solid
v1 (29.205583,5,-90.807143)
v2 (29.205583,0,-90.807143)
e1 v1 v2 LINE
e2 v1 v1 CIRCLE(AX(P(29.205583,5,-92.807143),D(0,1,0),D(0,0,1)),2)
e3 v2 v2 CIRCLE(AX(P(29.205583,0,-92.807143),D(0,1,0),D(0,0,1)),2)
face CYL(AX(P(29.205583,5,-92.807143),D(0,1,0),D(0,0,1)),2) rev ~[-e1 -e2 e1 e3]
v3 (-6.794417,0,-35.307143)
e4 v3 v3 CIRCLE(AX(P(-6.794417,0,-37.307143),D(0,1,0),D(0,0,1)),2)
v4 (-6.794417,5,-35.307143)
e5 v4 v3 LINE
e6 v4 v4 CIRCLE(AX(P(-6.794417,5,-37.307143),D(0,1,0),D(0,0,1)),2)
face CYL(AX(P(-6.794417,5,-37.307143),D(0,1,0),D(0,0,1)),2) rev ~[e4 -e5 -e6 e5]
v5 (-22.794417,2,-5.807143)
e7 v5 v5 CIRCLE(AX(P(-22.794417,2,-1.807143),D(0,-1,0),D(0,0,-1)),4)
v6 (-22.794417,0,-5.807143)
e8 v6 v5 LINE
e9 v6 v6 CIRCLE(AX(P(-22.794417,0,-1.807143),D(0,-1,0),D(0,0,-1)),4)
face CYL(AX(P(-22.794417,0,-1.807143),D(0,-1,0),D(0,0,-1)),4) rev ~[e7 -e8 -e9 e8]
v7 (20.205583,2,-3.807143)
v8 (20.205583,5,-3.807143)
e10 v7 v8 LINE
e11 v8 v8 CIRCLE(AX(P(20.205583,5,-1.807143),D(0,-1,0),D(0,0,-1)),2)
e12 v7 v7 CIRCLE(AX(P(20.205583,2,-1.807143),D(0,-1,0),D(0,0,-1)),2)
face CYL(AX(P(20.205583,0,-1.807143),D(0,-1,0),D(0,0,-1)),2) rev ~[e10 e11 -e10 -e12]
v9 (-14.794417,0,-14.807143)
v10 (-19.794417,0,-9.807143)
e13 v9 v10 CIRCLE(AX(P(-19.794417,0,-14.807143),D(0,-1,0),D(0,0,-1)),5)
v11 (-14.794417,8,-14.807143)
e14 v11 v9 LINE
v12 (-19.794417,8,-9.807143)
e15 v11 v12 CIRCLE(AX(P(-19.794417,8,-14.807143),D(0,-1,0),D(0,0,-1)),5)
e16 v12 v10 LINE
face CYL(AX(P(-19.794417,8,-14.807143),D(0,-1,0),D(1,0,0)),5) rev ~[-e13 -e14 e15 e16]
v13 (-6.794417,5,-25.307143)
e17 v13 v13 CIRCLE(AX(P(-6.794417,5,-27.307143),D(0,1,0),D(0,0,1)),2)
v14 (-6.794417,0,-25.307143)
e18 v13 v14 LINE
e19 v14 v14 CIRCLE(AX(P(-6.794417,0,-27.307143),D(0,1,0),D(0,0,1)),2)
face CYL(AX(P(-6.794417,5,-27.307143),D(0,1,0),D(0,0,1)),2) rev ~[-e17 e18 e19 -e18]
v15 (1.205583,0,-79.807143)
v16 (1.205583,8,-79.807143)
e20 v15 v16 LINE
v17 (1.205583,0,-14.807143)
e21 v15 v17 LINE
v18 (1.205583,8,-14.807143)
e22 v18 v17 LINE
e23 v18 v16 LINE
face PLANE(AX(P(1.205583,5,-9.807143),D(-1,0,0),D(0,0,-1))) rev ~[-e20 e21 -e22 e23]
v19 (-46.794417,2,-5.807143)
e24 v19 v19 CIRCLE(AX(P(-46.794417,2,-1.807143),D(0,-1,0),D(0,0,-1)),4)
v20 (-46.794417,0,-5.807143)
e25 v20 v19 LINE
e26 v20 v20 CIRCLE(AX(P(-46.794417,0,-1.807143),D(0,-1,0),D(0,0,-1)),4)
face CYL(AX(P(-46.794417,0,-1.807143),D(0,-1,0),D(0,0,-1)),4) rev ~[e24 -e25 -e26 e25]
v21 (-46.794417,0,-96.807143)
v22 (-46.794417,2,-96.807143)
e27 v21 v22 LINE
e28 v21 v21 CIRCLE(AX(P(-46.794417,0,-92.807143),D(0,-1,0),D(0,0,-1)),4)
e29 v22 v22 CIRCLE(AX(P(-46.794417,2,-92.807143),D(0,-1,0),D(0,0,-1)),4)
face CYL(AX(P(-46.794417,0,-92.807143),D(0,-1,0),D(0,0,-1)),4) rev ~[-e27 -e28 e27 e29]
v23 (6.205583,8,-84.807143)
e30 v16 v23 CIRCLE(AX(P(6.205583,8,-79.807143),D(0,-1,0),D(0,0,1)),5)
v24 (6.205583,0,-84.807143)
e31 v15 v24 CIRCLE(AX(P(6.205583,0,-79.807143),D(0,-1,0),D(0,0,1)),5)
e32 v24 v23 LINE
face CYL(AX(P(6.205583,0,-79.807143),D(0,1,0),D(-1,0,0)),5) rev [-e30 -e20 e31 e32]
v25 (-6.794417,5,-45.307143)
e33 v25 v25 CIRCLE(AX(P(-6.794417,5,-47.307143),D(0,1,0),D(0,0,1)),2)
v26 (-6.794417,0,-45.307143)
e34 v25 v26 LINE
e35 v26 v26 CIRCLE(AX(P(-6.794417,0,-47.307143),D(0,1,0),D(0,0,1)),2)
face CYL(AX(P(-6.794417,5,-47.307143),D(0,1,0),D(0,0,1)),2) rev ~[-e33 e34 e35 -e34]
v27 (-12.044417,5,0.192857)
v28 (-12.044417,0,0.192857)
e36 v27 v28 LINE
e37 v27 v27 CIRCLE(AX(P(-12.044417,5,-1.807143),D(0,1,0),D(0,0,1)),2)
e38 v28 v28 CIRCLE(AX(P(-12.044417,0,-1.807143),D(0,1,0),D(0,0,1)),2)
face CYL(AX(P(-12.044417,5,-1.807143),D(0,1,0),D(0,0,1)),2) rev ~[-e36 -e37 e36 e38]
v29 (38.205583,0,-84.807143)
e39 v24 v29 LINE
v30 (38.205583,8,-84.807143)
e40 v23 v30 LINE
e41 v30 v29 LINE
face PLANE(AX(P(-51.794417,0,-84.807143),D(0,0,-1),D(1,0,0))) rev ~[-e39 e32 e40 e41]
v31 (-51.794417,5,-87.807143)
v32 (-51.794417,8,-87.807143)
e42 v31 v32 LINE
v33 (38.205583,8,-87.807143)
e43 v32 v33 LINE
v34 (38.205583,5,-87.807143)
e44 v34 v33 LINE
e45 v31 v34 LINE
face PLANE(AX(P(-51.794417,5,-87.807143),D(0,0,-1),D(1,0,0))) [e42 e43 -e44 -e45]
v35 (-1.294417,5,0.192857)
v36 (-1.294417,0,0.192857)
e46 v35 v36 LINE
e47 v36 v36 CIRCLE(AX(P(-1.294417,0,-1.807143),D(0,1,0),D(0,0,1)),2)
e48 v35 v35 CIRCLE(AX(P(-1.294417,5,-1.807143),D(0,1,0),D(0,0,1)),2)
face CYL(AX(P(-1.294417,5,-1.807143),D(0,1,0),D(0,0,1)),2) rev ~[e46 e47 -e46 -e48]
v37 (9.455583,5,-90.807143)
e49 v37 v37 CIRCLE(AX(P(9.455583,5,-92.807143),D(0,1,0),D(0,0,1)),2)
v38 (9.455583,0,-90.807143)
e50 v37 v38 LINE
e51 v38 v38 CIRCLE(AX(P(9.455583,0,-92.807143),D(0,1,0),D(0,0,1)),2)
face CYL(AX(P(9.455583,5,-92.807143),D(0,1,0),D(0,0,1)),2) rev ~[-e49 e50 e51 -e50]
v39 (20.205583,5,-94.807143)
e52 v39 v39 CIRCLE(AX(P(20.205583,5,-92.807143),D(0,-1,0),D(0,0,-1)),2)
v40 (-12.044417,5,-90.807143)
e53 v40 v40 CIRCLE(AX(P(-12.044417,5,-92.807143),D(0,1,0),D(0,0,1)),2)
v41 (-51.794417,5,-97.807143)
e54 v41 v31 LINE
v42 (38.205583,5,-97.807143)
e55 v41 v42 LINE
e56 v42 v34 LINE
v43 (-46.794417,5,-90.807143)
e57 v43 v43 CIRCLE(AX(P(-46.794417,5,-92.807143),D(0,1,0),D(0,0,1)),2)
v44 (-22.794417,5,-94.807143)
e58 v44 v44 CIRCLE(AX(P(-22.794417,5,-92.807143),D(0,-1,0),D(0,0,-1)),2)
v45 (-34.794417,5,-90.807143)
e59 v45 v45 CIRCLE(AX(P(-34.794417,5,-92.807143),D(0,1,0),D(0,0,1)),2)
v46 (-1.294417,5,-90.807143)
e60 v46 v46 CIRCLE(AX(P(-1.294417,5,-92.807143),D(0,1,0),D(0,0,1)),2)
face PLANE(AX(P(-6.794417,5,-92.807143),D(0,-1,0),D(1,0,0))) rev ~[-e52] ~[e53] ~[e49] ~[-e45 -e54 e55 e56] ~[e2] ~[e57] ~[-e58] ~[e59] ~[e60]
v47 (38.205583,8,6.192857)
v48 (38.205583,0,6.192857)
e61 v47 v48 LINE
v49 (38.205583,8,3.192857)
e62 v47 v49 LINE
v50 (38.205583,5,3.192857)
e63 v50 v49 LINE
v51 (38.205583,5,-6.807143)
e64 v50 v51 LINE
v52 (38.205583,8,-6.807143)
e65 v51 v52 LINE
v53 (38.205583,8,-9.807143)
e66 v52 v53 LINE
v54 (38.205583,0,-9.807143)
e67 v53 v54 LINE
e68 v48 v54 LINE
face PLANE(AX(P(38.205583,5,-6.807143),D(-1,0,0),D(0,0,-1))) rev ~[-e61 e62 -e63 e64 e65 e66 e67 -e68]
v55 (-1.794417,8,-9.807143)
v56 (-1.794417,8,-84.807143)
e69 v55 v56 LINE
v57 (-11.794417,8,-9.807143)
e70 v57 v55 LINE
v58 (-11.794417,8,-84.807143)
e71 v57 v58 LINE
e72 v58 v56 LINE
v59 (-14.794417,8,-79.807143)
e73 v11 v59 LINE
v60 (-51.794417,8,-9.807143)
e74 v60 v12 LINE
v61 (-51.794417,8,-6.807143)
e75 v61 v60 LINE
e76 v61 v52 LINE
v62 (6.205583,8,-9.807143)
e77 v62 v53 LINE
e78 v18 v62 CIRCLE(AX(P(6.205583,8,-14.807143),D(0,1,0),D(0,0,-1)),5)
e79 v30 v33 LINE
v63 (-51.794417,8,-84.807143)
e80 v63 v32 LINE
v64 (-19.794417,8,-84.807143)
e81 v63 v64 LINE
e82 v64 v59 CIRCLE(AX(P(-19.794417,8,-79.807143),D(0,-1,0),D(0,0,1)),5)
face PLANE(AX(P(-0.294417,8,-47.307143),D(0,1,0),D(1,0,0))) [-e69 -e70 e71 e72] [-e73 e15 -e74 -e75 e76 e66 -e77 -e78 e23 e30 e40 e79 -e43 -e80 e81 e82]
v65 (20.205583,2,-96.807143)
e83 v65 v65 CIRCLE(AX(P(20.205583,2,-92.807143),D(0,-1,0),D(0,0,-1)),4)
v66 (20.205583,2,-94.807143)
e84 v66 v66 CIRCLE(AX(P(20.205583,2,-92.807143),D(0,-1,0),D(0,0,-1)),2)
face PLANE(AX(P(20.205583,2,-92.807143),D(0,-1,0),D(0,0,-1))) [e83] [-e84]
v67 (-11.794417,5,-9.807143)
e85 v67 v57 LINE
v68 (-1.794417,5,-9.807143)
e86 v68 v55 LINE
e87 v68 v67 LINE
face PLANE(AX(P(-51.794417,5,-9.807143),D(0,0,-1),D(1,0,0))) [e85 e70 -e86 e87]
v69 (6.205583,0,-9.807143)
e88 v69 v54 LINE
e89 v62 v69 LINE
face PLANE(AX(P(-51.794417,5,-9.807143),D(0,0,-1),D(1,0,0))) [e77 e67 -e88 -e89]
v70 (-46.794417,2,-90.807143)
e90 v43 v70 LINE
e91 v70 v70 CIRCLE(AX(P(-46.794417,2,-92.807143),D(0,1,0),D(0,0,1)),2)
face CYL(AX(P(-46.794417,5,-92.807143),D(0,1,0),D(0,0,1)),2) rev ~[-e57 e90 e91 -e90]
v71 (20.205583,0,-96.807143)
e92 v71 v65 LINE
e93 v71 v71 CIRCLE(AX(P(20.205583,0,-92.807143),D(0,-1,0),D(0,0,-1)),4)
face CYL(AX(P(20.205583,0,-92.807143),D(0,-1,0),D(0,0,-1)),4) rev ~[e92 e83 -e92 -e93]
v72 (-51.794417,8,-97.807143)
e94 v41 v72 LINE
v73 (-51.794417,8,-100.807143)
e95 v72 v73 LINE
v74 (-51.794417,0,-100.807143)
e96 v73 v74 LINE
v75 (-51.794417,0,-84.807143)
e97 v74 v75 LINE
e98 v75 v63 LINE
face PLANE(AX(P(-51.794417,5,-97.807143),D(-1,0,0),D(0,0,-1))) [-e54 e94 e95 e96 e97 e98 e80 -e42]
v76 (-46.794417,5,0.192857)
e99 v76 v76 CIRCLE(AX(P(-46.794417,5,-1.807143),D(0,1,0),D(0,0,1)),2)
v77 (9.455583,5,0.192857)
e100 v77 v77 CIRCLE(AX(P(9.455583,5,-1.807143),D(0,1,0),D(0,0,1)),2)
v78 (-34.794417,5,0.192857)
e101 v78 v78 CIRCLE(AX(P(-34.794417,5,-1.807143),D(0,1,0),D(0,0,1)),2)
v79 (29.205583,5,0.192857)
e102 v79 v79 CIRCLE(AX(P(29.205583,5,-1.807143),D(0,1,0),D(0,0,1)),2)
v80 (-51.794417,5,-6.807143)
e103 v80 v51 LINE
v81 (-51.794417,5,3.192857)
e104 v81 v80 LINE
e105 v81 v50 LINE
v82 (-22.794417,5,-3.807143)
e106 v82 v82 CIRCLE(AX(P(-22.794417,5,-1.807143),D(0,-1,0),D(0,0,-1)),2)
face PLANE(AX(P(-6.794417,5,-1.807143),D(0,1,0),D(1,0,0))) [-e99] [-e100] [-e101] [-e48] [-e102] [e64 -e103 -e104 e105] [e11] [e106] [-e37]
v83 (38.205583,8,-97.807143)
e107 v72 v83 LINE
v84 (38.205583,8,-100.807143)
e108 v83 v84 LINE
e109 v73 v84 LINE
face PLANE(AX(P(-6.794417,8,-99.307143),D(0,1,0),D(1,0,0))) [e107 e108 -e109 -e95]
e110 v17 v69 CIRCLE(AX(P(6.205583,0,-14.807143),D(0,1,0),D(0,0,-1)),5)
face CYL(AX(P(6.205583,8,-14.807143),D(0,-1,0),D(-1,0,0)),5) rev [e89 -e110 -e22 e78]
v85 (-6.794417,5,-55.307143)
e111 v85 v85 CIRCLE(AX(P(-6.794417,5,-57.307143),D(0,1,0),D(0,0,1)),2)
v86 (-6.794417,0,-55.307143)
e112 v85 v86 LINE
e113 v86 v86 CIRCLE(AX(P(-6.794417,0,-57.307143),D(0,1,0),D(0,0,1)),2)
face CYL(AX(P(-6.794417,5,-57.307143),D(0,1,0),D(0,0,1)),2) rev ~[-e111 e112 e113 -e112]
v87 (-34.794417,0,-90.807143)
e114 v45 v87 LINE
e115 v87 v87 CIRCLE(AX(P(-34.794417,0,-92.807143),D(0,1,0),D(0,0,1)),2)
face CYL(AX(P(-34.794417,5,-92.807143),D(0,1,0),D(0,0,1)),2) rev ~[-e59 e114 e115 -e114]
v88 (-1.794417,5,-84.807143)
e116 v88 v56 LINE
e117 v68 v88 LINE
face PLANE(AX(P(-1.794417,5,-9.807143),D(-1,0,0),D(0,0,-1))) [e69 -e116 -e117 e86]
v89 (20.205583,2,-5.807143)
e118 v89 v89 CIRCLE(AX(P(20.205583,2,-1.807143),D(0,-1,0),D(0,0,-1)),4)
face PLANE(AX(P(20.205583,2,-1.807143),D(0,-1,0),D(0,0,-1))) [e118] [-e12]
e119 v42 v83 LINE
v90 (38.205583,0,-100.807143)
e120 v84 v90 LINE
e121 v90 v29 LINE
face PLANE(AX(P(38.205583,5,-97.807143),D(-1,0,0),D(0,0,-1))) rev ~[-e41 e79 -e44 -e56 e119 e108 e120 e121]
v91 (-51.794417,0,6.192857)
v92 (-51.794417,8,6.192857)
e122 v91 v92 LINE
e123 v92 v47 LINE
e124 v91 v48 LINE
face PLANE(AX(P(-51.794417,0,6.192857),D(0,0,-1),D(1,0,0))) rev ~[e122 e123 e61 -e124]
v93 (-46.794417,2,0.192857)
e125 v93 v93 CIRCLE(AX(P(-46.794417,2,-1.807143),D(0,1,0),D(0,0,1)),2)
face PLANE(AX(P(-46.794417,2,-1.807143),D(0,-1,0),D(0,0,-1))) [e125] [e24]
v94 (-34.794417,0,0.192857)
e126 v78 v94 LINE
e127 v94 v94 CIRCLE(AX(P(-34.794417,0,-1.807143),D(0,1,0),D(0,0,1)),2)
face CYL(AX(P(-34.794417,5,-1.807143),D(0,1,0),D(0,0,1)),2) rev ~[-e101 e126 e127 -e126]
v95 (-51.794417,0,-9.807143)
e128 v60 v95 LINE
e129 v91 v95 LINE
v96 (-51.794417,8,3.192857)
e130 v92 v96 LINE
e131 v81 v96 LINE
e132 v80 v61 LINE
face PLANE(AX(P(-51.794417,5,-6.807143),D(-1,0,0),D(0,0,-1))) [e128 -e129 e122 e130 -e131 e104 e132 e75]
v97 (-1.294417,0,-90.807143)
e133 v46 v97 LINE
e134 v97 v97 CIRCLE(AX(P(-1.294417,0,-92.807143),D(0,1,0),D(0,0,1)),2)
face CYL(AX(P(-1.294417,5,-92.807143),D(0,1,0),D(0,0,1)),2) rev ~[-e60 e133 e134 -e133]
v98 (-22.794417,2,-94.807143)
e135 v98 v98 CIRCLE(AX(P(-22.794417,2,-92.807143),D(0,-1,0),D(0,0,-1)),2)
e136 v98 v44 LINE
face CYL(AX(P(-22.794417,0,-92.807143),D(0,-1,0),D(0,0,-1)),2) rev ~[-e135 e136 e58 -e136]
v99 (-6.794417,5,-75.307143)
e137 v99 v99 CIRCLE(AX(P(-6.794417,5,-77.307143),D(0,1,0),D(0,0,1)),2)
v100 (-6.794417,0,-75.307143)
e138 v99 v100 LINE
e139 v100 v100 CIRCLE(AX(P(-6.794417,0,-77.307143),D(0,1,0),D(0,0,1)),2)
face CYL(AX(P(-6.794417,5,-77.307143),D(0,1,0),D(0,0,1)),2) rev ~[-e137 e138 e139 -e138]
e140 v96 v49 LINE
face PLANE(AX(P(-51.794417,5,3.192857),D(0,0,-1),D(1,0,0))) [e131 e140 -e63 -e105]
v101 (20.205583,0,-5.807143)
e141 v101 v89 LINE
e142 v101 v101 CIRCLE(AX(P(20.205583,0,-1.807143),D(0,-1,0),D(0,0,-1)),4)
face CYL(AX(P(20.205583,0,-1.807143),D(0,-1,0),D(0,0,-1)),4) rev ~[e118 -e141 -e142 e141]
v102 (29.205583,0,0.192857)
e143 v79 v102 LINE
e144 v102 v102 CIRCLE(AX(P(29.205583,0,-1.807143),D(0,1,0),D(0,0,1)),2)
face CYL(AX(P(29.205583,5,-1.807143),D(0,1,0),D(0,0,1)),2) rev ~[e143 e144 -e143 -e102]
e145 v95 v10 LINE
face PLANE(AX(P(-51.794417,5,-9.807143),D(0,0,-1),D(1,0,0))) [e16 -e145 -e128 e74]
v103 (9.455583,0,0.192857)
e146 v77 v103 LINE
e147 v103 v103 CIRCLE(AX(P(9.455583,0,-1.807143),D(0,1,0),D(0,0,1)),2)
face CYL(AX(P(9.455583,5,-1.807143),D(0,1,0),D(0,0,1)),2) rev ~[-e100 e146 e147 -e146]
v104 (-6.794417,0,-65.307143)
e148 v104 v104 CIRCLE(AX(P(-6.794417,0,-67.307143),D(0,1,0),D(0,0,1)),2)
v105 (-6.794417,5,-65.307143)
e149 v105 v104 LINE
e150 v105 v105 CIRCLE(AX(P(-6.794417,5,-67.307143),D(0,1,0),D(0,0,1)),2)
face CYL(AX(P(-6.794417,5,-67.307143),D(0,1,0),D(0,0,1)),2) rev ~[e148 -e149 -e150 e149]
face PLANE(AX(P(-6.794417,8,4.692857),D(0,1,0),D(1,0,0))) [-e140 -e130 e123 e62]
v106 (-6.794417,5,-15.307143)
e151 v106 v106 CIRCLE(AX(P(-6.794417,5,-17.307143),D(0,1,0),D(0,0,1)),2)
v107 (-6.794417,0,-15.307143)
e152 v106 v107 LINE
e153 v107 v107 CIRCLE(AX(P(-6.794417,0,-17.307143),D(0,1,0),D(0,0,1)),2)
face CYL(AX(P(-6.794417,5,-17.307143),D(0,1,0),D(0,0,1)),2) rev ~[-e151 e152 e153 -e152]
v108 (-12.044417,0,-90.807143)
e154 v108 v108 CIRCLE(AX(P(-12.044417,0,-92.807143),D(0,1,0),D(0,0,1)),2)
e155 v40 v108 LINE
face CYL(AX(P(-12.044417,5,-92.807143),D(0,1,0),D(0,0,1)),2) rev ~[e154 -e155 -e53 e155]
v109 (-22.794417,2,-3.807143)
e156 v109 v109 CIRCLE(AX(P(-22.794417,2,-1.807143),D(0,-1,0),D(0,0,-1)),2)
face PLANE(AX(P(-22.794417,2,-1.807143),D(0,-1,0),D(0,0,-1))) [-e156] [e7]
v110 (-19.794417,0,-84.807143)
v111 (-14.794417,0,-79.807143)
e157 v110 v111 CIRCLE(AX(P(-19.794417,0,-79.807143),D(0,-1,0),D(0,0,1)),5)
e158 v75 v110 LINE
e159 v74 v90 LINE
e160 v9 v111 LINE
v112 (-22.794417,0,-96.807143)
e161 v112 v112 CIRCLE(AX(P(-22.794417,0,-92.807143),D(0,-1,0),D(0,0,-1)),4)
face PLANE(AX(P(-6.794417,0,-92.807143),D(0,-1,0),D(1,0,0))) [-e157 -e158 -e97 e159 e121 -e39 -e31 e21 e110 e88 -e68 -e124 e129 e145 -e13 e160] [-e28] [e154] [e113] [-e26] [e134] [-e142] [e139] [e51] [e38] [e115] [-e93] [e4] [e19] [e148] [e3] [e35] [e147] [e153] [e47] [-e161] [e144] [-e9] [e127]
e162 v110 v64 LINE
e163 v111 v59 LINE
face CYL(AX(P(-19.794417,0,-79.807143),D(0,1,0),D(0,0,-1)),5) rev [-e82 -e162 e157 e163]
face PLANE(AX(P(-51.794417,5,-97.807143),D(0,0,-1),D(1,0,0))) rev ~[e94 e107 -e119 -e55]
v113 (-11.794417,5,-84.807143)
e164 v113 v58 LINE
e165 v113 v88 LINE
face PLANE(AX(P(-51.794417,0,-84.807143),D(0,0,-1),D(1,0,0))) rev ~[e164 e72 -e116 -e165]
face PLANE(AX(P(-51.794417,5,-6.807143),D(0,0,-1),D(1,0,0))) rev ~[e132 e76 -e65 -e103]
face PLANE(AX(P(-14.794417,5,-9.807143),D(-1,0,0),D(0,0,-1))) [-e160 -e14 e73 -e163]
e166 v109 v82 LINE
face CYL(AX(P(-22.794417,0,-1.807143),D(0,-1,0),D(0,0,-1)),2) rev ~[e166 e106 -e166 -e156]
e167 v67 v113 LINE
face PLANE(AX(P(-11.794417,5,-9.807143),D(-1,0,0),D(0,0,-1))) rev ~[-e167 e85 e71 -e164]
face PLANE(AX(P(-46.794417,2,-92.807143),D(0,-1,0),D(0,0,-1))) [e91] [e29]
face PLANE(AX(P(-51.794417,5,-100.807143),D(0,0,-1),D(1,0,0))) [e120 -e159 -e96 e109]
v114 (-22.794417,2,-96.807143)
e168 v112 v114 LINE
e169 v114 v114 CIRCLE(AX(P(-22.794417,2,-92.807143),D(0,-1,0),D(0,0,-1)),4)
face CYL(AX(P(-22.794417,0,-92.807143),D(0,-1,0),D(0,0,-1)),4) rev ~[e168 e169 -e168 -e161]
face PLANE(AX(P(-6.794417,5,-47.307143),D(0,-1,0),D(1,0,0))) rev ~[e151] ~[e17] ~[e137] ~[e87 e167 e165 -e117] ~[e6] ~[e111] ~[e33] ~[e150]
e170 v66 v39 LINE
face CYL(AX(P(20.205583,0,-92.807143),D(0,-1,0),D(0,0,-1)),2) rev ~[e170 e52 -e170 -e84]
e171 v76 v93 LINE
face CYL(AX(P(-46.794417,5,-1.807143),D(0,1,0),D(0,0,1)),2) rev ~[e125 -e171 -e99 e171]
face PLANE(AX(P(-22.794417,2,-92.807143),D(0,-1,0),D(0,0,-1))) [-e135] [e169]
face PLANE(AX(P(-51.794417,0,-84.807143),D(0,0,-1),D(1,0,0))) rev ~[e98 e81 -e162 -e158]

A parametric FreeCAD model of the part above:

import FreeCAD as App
import Part
import Sketcher


def edges_at(feature, points):
    """Names of the edges that pass closest to the given points."""
    edges = feature.Shape.Edges
    near = lambda p: min(range(len(edges)), key=lambda i: edges[i].distToShape(Part.Vertex(*p))[0])
    return sorted({f"Edge{near(p) + 1}" for p in points})

doc = App.newDocument("Part")
body = doc.addObject("PartDesign::Body", "Body")

# Sketch on XZ plane
sketch1 = body.newObject("Sketcher::SketchObject", "Sketch")
sketch1.AttachmentSupport = (doc.getObject("XZ_Plane"), [""])
sketch1.MapMode = "FlatFace"
sketch1.addGeometry(Part.LineSegment(App.Vector(-52, -10, 0), App.Vector(-52, 6, 0)), False)
sketch1.addGeometry(Part.LineSegment(App.Vector(-52, 6, 0), App.Vector(38, 6, 0)), False)
sketch1.addGeometry(Part.LineSegment(App.Vector(38, 6, 0), App.Vector(38, -10, 0)), False)
sketch1.addGeometry(Part.LineSegment(App.Vector(38, -10, 0), App.Vector(-52, -10, 0)), False)
sketch1.addConstraint(Sketcher.Constraint("Coincident", 0, 2, 1, 1))
sketch1.addConstraint(Sketcher.Constraint("Coincident", 1, 2, 2, 1))
sketch1.addConstraint(Sketcher.Constraint("Coincident", 2, 2, 3, 1))
sketch1.addConstraint(Sketcher.Constraint("Coincident", 3, 2, 0, 1))
sketch1.addConstraint(Sketcher.Constraint("Vertical", 0))
sketch1.addConstraint(Sketcher.Constraint("Horizontal", 1))
sketch1.addConstraint(Sketcher.Constraint("Vertical", 2))
sketch1.addConstraint(Sketcher.Constraint("Horizontal", 3))
sketch1.addConstraint(Sketcher.Constraint("DistanceX", 1, 1, 1, 2, 90.0))
sketch1.addConstraint(Sketcher.Constraint("DistanceY", 0, 1, 0, 2, 16.0))
sketch1.addConstraint(Sketcher.Constraint("DistanceX", 0, 2, -1, 1, 51.794417))
sketch1.addConstraint(Sketcher.Constraint("DistanceY", -1, 1, 0, 2, 6.192857))
pad1 = body.newObject("PartDesign::Pad", "Pad")
pad1.Profile = sketch1
pad1.Length = 5
pad1.Reversed = True

# Sketch on XZ plane
sketch2 = body.newObject("Sketcher::SketchObject", "Sketch001")
sketch2.AttachmentSupport = (doc.getObject("XZ_Plane"), [""])
sketch2.MapMode = "FlatFace"
sketch2.AttachmentOffset = App.Placement(App.Vector(0, 0, -5), App.Rotation())
sketch2.addGeometry(Part.LineSegment(App.Vector(-51.8, -9.8, 0), App.Vector(-51.8, -6.8, 0)), False)
sketch2.addGeometry(Part.LineSegment(App.Vector(-51.8, -6.8, 0), App.Vector(38.2, -6.8, 0)), False)
sketch2.addGeometry(Part.LineSegment(App.Vector(38.2, -6.8, 0), App.Vector(38.2, -9.8, 0)), False)
sketch2.addGeometry(Part.LineSegment(App.Vector(38.2, -9.8, 0), App.Vector(-51.8, -9.8, 0)), False)
sketch2.addGeometry(Part.LineSegment(App.Vector(-51.8, 3.2, 0), App.Vector(-51.8, 6.2, 0)), False)
sketch2.addGeometry(Part.LineSegment(App.Vector(-51.8, 6.2, 0), App.Vector(38.2, 6.2, 0)), False)
sketch2.addGeometry(Part.LineSegment(App.Vector(38.2, 6.2, 0), App.Vector(38.2, 3.2, 0)), False)
sketch2.addGeometry(Part.LineSegment(App.Vector(38.2, 3.2, 0), App.Vector(-51.8, 3.2, 0)), False)
sketch2.addConstraint(Sketcher.Constraint("Coincident", 0, 2, 1, 1))
sketch2.addConstraint(Sketcher.Constraint("Coincident", 1, 2, 2, 1))
sketch2.addConstraint(Sketcher.Constraint("Coincident", 2, 2, 3, 1))
sketch2.addConstraint(Sketcher.Constraint("Coincident", 3, 2, 0, 1))
sketch2.addConstraint(Sketcher.Constraint("Coincident", 4, 2, 5, 1))
sketch2.addConstraint(Sketcher.Constraint("Coincident", 5, 2, 6, 1))
sketch2.addConstraint(Sketcher.Constraint("Coincident", 6, 2, 7, 1))
sketch2.addConstraint(Sketcher.Constraint("Coincident", 7, 2, 4, 1))
sketch2.addConstraint(Sketcher.Constraint("Vertical", 0))
sketch2.addConstraint(Sketcher.Constraint("Horizontal", 1))
sketch2.addConstraint(Sketcher.Constraint("Vertical", 2))
sketch2.addConstraint(Sketcher.Constraint("Horizontal", 3))
sketch2.addConstraint(Sketcher.Constraint("Vertical", 4))
sketch2.addConstraint(Sketcher.Constraint("Horizontal", 5))
sketch2.addConstraint(Sketcher.Constraint("Vertical", 6))
sketch2.addConstraint(Sketcher.Constraint("Horizontal", 7))
sketch2.addConstraint(Sketcher.Constraint("Vertical", 3, 2, 4, 2))
sketch2.addConstraint(Sketcher.Constraint("Vertical", 2, 2, 5, 2))
sketch2.addConstraint(Sketcher.Constraint("Equal", 2, 4))
sketch2.addConstraint(Sketcher.Constraint("DistanceX", 1, 1, 1, 2, 90.0))
sketch2.addConstraint(Sketcher.Constraint("DistanceY", 0, 1, 0, 2, 3.0))
sketch2.addConstraint(Sketcher.Constraint("DistanceY", 0, 2, 4, 2, 13.0))
sketch2.addConstraint(Sketcher.Constraint("DistanceX", 0, 2, -1, 1, 51.794417))
sketch2.addConstraint(Sketcher.Constraint("DistanceY", 0, 2, -1, 1, 6.807143))
pad2 = body.newObject("PartDesign::Pad", "Pad001")
pad2.Profile = sketch2
pad2.Length = 3
pad2.Reversed = True

# Sketch on XZ plane
sketch3 = body.newObject("Sketcher::SketchObject", "Sketch002")
sketch3.AttachmentSupport = (doc.getObject("XZ_Plane"), [""])
sketch3.MapMode = "FlatFace"
sketch3.addGeometry(Part.Circle(App.Vector(20.2, -1.8, 0), App.Vector(0, 0, 1), 2), False)
sketch3.addGeometry(Part.Circle(App.Vector(-22.8, -1.8, 0), App.Vector(0, 0, 1), 2), False)
sketch3.addConstraint(Sketcher.Constraint("Equal", 0, 1))
sketch3.addConstraint(Sketcher.Constraint("Horizontal", 0, 3, 1, 3))
sketch3.addConstraint(Sketcher.Constraint("Diameter", 0, 4.0))
sketch3.addConstraint(Sketcher.Constraint("DistanceX", 1, 3, 0, 3, 43.0))
sketch3.addConstraint(Sketcher.Constraint("DistanceX", -1, 1, 0, 3, 20.205583))
sketch3.addConstraint(Sketcher.Constraint("DistanceY", 0, 3, -1, 1, 1.807143))
pocket1 = body.newObject("PartDesign::Pocket", "Pocket")
pocket1.Profile = sketch3
pocket1.Length = 5
body2 = doc.addObject("PartDesign::Body", "Body001")

# Sketch on XZ plane
sketch4 = body2.newObject("Sketcher::SketchObject", "Sketch003")
sketch4.AttachmentSupport = (doc.getObject("XZ_Plane001"), [""])
sketch4.MapMode = "FlatFace"
sketch4.addGeometry(Part.LineSegment(App.Vector(-51.8, -84.8, 0), App.Vector(-51.8, -100.8, 0)), False)
sketch4.addGeometry(Part.LineSegment(App.Vector(-51.8, -100.8, 0), App.Vector(38.2, -100.8, 0)), False)
sketch4.addGeometry(Part.LineSegment(App.Vector(38.2, -100.8, 0), App.Vector(38.2, -84.8, 0)), False)
sketch4.addGeometry(Part.LineSegment(App.Vector(38.2, -84.8, 0), App.Vector(-51.8, -84.8, 0)), False)
sketch4.addGeometry(Part.Circle(App.Vector(-22.8, -92.8, 0), App.Vector(0, 0, 1), 2), False)
sketch4.addGeometry(Part.Circle(App.Vector(20.2, -92.8, 0), App.Vector(0, 0, 1), 2), False)
sketch4.addConstraint(Sketcher.Constraint("Coincident", 0, 2, 1, 1))
sketch4.addConstraint(Sketcher.Constraint("Coincident", 1, 2, 2, 1))
sketch4.addConstraint(Sketcher.Constraint("Coincident", 2, 2, 3, 1))
sketch4.addConstraint(Sketcher.Constraint("Coincident", 3, 2, 0, 1))
sketch4.addConstraint(Sketcher.Constraint("Vertical", 0))
sketch4.addConstraint(Sketcher.Constraint("Horizontal", 1))
sketch4.addConstraint(Sketcher.Constraint("Vertical", 2))
sketch4.addConstraint(Sketcher.Constraint("Horizontal", 3))
sketch4.addConstraint(Sketcher.Constraint("Equal", 4, 5))
sketch4.addConstraint(Sketcher.Constraint("Horizontal", 4, 3, 5, 3))
sketch4.addConstraint(Sketcher.Constraint("Diameter", 4, 4.0))
sketch4.addConstraint(Sketcher.Constraint("DistanceX", 1, 1, 1, 2, 90.0))
sketch4.addConstraint(Sketcher.Constraint("DistanceY", 0, 2, 0, 1, 16.0))
sketch4.addConstraint(Sketcher.Constraint("DistanceX", 4, 3, 5, 3, 43.0))
sketch4.addConstraint(Sketcher.Constraint("DistanceX", 0, 2, 4, 3, 29.0))
sketch4.addConstraint(Sketcher.Constraint("DistanceY", 0, 2, 4, 3, 8.0))
sketch4.addConstraint(Sketcher.Constraint("DistanceX", 4, 3, -1, 1, 22.794417))
sketch4.addConstraint(Sketcher.Constraint("DistanceY", 4, 3, -1, 1, 92.807143))
pad3 = body2.newObject("PartDesign::Pad", "Pad002")
pad3.Profile = sketch4
pad3.Length = 5
pad3.Reversed = True

# Sketch on XZ plane
sketch5 = body2.newObject("Sketcher::SketchObject", "Sketch004")
sketch5.AttachmentSupport = (doc.getObject("XZ_Plane001"), [""])
sketch5.MapMode = "FlatFace"
sketch5.AttachmentOffset = App.Placement(App.Vector(0, 0, -5), App.Rotation())
sketch5.addGeometry(Part.LineSegment(App.Vector(-51.8, -100.8, 0), App.Vector(-51.8, -97.8, 0)), False)
sketch5.addGeometry(Part.LineSegment(App.Vector(-51.8, -97.8, 0), App.Vector(38.2, -97.8, 0)), False)
sketch5.addGeometry(Part.LineSegment(App.Vector(38.2, -97.8, 0), App.Vector(38.2, -100.8, 0)), False)
sketch5.addGeometry(Part.LineSegment(App.Vector(38.2, -100.8, 0), App.Vector(-51.8, -100.8, 0)), False)
sketch5.addGeometry(Part.LineSegment(App.Vector(-51.8, -87.8, 0), App.Vector(-51.8, -84.8, 0)), False)
sketch5.addGeometry(Part.LineSegment(App.Vector(-51.8, -84.8, 0), App.Vector(38.2, -84.8, 0)), False)
sketch5.addGeometry(Part.LineSegment(App.Vector(38.2, -84.8, 0), App.Vector(38.2, -87.8, 0)), False)
sketch5.addGeometry(Part.LineSegment(App.Vector(38.2, -87.8, 0), App.Vector(-51.8, -87.8, 0)), False)
sketch5.addConstraint(Sketcher.Constraint("Coincident", 0, 2, 1, 1))
sketch5.addConstraint(Sketcher.Constraint("Coincident", 1, 2, 2, 1))
sketch5.addConstraint(Sketcher.Constraint("Coincident", 2, 2, 3, 1))
sketch5.addConstraint(Sketcher.Constraint("Coincident", 3, 2, 0, 1))
sketch5.addConstraint(Sketcher.Constraint("Coincident", 4, 2, 5, 1))
sketch5.addConstraint(Sketcher.Constraint("Coincident", 5, 2, 6, 1))
sketch5.addConstraint(Sketcher.Constraint("Coincident", 6, 2, 7, 1))
sketch5.addConstraint(Sketcher.Constraint("Coincident", 7, 2, 4, 1))
sketch5.addConstraint(Sketcher.Constraint("Vertical", 0))
sketch5.addConstraint(Sketcher.Constraint("Horizontal", 1))
sketch5.addConstraint(Sketcher.Constraint("Vertical", 2))
sketch5.addConstraint(Sketcher.Constraint("Horizontal", 3))
sketch5.addConstraint(Sketcher.Constraint("Vertical", 4))
sketch5.addConstraint(Sketcher.Constraint("Horizontal", 5))
sketch5.addConstraint(Sketcher.Constraint("Vertical", 6))
sketch5.addConstraint(Sketcher.Constraint("Horizontal", 7))
sketch5.addConstraint(Sketcher.Constraint("Vertical", 3, 2, 4, 2))
sketch5.addConstraint(Sketcher.Constraint("Vertical", 2, 2, 5, 2))
sketch5.addConstraint(Sketcher.Constraint("Equal", 2, 4))
sketch5.addConstraint(Sketcher.Constraint("DistanceX", 1, 1, 1, 2, 90.0))
sketch5.addConstraint(Sketcher.Constraint("DistanceY", 0, 1, 0, 2, 3.0))
sketch5.addConstraint(Sketcher.Constraint("DistanceY", 0, 2, 4, 2, 13.0))
sketch5.addConstraint(Sketcher.Constraint("DistanceX", 0, 2, -1, 1, 51.794417))
sketch5.addConstraint(Sketcher.Constraint("DistanceY", 0, 2, -1, 1, 97.807143))
pad4 = body2.newObject("PartDesign::Pad", "Pad003")
pad4.Profile = sketch5
pad4.Length = 3
pad4.Reversed = True
body.AllowCompound = True
doc.recompute()

boolean = body.newObject("PartDesign::Boolean", "Boolean")
boolean.Type = "Fuse"
boolean.addObjects([body2])

# Sketch on XZ plane
sketch6 = body.newObject("Sketcher::SketchObject", "Sketch005")
sketch6.AttachmentSupport = (doc.getObject("XZ_Plane"), [""])
sketch6.MapMode = "FlatFace"
sketch6.addGeometry(Part.LineSegment(App.Vector(1, -85, 0), App.Vector(1, -10, 0)), False)
sketch6.addGeometry(Part.LineSegment(App.Vector(1, -10, 0), App.Vector(-15, -10, 0)), False)
sketch6.addGeometry(Part.LineSegment(App.Vector(-15, -10, 0), App.Vector(-15, -85, 0)), False)
sketch6.addGeometry(Part.LineSegment(App.Vector(-15, -85, 0), App.Vector(1, -85, 0)), False)
sketch6.addConstraint(Sketcher.Constraint("Coincident", 0, 2, 1, 1))
sketch6.addConstraint(Sketcher.Constraint("Coincident", 1, 2, 2, 1))
sketch6.addConstraint(Sketcher.Constraint("Coincident", 2, 2, 3, 1))
sketch6.addConstraint(Sketcher.Constraint("Coincident", 3, 2, 0, 1))
sketch6.addConstraint(Sketcher.Constraint("Vertical", 0))
sketch6.addConstraint(Sketcher.Constraint("Horizontal", 1))
sketch6.addConstraint(Sketcher.Constraint("Vertical", 2))
sketch6.addConstraint(Sketcher.Constraint("Horizontal", 3))
sketch6.addConstraint(Sketcher.Constraint("DistanceX", 1, 2, 1, 1, 16.0))
sketch6.addConstraint(Sketcher.Constraint("DistanceY", 0, 1, 0, 2, 75.0))
sketch6.addConstraint(Sketcher.Constraint("DistanceX", -1, 1, 0, 2, 1.205583))
sketch6.addConstraint(Sketcher.Constraint("DistanceY", 0, 2, -1, 1, 9.807143))
pad5 = body.newObject("PartDesign::Pad", "Pad004")
pad5.Profile = sketch6
pad5.Length = 5
pad5.Reversed = True

# Sketch on XZ plane
sketch7 = body.newObject("Sketcher::SketchObject", "Sketch006")
sketch7.AttachmentSupport = (doc.getObject("XZ_Plane"), [""])
sketch7.MapMode = "FlatFace"
sketch7.AttachmentOffset = App.Placement(App.Vector(0, 0, -5), App.Rotation())
sketch7.addGeometry(Part.LineSegment(App.Vector(-1.8, -84.8, 0), App.Vector(-1.8, -9.8, 0)), False)
sketch7.addGeometry(Part.LineSegment(App.Vector(-1.8, -9.8, 0), App.Vector(1.2, -9.8, 0)), False)
sketch7.addGeometry(Part.LineSegment(App.Vector(1.2, -9.8, 0), App.Vector(1.2, -84.8, 0)), False)
sketch7.addGeometry(Part.LineSegment(App.Vector(1.2, -84.8, 0), App.Vector(-1.8, -84.8, 0)), False)
sketch7.addGeometry(Part.LineSegment(App.Vector(-14.8, -84.8, 0), App.Vector(-14.8, -9.8, 0)), False)
sketch7.addGeometry(Part.LineSegment(App.Vector(-14.8, -9.8, 0), App.Vector(-11.8, -9.8, 0)), False)
sketch7.addGeometry(Part.LineSegment(App.Vector(-11.8, -9.8, 0), App.Vector(-11.8, -84.8, 0)), False)
sketch7.addGeometry(Part.LineSegment(App.Vector(-11.8, -84.8, 0), App.Vector(-14.8, -84.8, 0)), False)
sketch7.addConstraint(Sketcher.Constraint("Coincident", 0, 2, 1, 1))
sketch7.addConstraint(Sketcher.Constraint("Coincident", 1, 2, 2, 1))
sketch7.addConstraint(Sketcher.Constraint("Coincident", 2, 2, 3, 1))
sketch7.addConstraint(Sketcher.Constraint("Coincident", 3, 2, 0, 1))
sketch7.addConstraint(Sketcher.Constraint("Coincident", 4, 2, 5, 1))
sketch7.addConstraint(Sketcher.Constraint("Coincident", 5, 2, 6, 1))
sketch7.addConstraint(Sketcher.Constraint("Coincident", 6, 2, 7, 1))
sketch7.addConstraint(Sketcher.Constraint("Coincident", 7, 2, 4, 1))
sketch7.addConstraint(Sketcher.Constraint("Vertical", 0))
sketch7.addConstraint(Sketcher.Constraint("Horizontal", 1))
sketch7.addConstraint(Sketcher.Constraint("Vertical", 2))
sketch7.addConstraint(Sketcher.Constraint("Horizontal", 3))
sketch7.addConstraint(Sketcher.Constraint("Vertical", 4))
sketch7.addConstraint(Sketcher.Constraint("Horizontal", 5))
sketch7.addConstraint(Sketcher.Constraint("Vertical", 6))
sketch7.addConstraint(Sketcher.Constraint("Horizontal", 7))
sketch7.addConstraint(Sketcher.Constraint("Horizontal", 1, 2, 4, 2))
sketch7.addConstraint(Sketcher.Constraint("Horizontal", 3, 2, 6, 2))
sketch7.addConstraint(Sketcher.Constraint("Equal", 3, 5))
sketch7.addConstraint(Sketcher.Constraint("DistanceX", 1, 1, 1, 2, 3.0))
sketch7.addConstraint(Sketcher.Constraint("DistanceY", 0, 1, 0, 2, 75.0))
sketch7.addConstraint(Sketcher.Constraint("DistanceX", 4, 2, 0, 2, 13.0))
sketch7.addConstraint(Sketcher.Constraint("DistanceX", 0, 2, -1, 1, 1.794417))
sketch7.addConstraint(Sketcher.Constraint("DistanceY", 0, 2, -1, 1, 9.807143))
pad6 = body.newObject("PartDesign::Pad", "Pad005")
pad6.Profile = sketch7
pad6.Length = 3
pad6.Reversed = True

# Sketch on XZ plane
sketch8 = body.newObject("Sketcher::SketchObject", "Sketch007")
sketch8.AttachmentSupport = (doc.getObject("XZ_Plane"), [""])
sketch8.MapMode = "FlatFace"
sketch8.AttachmentOffset = App.Placement(App.Vector(0, 0, -5), App.Rotation())
sketch8.addGeometry(Part.Circle(App.Vector(-46.8, -92.8, 0), App.Vector(0, 0, 1), 2), False)
sketch8.addGeometry(Part.Circle(App.Vector(-34.8, -92.8, 0), App.Vector(0, 0, 1), 2), False)
sketch8.addGeometry(Part.Circle(App.Vector(29.2, -92.8, 0), App.Vector(0, 0, 1), 2), False)
sketch8.addGeometry(Part.Circle(App.Vector(9.5, -92.8, 0), App.Vector(0, 0, 1), 2), False)
sketch8.addGeometry(Part.Circle(App.Vector(-1.3, -92.8, 0), App.Vector(0, 0, 1), 2), False)
sketch8.addGeometry(Part.Circle(App.Vector(-12, -92.8, 0), App.Vector(0, 0, 1), 2), False)
sketch8.addGeometry(Part.Circle(App.Vector(-1.3, -1.8, 0), App.Vector(0, 0, 1), 2), False)
sketch8.addGeometry(Part.Circle(App.Vector(-12, -1.8, 0), App.Vector(0, 0, 1), 2), False)
sketch8.addGeometry(Part.Circle(App.Vector(9.5, -1.8, 0), App.Vector(0, 0, 1), 2), False)
sketch8.addGeometry(Part.Circle(App.Vector(-34.8, -1.8, 0), App.Vector(0, 0, 1), 2), False)
sketch8.addGeometry(Part.Circle(App.Vector(29.2, -1.8, 0), App.Vector(0, 0, 1), 2), False)
sketch8.addGeometry(Part.Circle(App.Vector(-46.8, -1.8, 0), App.Vector(0, 0, 1), 2), False)
sketch8.addConstraint(Sketcher.Constraint("Equal", 0, 1))
sketch8.addConstraint(Sketcher.Constraint("Equal", 1, 2))
sketch8.addConstraint(Sketcher.Constraint("Equal", 2, 3))
sketch8.addConstraint(Sketcher.Constraint("Equal", 3, 4))
sketch8.addConstraint(Sketcher.Constraint("Equal", 4, 5))
sketch8.addConstraint(Sketcher.Constraint("Equal", 5, 6))
sketch8.addConstraint(Sketcher.Constraint("Equal", 6, 7))
sketch8.addConstraint(Sketcher.Constraint("Equal", 7, 8))
sketch8.addConstraint(Sketcher.Constraint("Equal", 8, 9))
sketch8.addConstraint(Sketcher.Constraint("Equal", 9, 10))
sketch8.addConstraint(Sketcher.Constraint("Equal", 10, 11))
sketch8.addConstraint(Sketcher.Constraint("Horizontal", 0, 3, 1, 3))
sketch8.addConstraint(Sketcher.Constraint("Horizontal", 1, 3, 2, 3))
sketch8.addConstraint(Sketcher.Constraint("Horizontal", 2, 3, 3, 3))
sketch8.addConstraint(Sketcher.Constraint("Horizontal", 3, 3, 4, 3))
sketch8.addConstraint(Sketcher.Constraint("Horizontal", 4, 3, 5, 3))
sketch8.addConstraint(Sketcher.Constraint("Horizontal", 6, 3, 7, 3))
sketch8.addConstraint(Sketcher.Constraint("Horizontal", 7, 3, 8, 3))
sketch8.addConstraint(Sketcher.Constraint("Horizontal", 8, 3, 9, 3))
sketch8.addConstraint(Sketcher.Constraint("Horizontal", 9, 3, 10, 3))
sketch8.addConstraint(Sketcher.Constraint("Horizontal", 10, 3, 11, 3))
sketch8.addConstraint(Sketcher.Constraint("Vertical", 4, 3, 6, 3))
sketch8.addConstraint(Sketcher.Constraint("Vertical", 5, 3, 7, 3))
sketch8.addConstraint(Sketcher.Constraint("Vertical", 3, 3, 8, 3))
sketch8.addConstraint(Sketcher.Constraint("Vertical", 1, 3, 9, 3))
sketch8.addConstraint(Sketcher.Constraint("Vertical", 2, 3, 10, 3))
sketch8.addConstraint(Sketcher.Constraint("Vertical", 0, 3, 11, 3))
sketch8.addConstraint(Sketcher.Constraint("Diameter", 0, 4.0))
sketch8.addConstraint(Sketcher.Constraint("DistanceX", 0, 3, 1, 3, 12.0))
sketch8.addConstraint(Sketcher.Constraint("DistanceX", 1, 3, 2, 3, 64.0))
sketch8.addConstraint(Sketcher.Constraint("DistanceY", 4, 3, 6, 3, 91.0))
sketch8.addConstraint(Sketcher.Constraint("DistanceX", 4, 3, 2, 3, 30.5))
sketch8.addConstraint(Sketcher.Constraint("DistanceX", 5, 3, 3, 3, 21.5))
sketch8.addConstraint(Sketcher.Constraint("DistanceX", 3, 3, 2, 3, 19.75))
sketch8.addConstraint(Sketcher.Constraint("DistanceX", 0, 3, -1, 1, 46.794417))
sketch8.addConstraint(Sketcher.Constraint("DistanceY", 0, 3, -1, 1, 92.807143))
pocket2 = body.newObject("PartDesign::Pocket", "Pocket001")
pocket2.Profile = sketch8
pocket2.Length = 5
pocket2.Reversed = True

# Sketch on XZ plane
sketch9 = body.newObject("Sketcher::SketchObject", "Sketch008")
sketch9.AttachmentSupport = (doc.getObject("XZ_Plane"), [""])
sketch9.MapMode = "FlatFace"
sketch9.AttachmentOffset = App.Placement(App.Vector(0, 0, -5), App.Rotation())
sketch9.addGeometry(Part.Circle(App.Vector(-6.8, -47.3, 0), App.Vector(0, 0, 1), 2), False)
sketch9.addGeometry(Part.Circle(App.Vector(-6.8, -57.3, 0), App.Vector(0, 0, 1), 2), False)
sketch9.addGeometry(Part.Circle(App.Vector(-6.8, -67.3, 0), App.Vector(0, 0, 1), 2), False)
sketch9.addGeometry(Part.Circle(App.Vector(-6.8, -77.3, 0), App.Vector(0, 0, 1), 2), False)
sketch9.addGeometry(Part.Circle(App.Vector(-6.8, -37.3, 0), App.Vector(0, 0, 1), 2), False)
sketch9.addGeometry(Part.Circle(App.Vector(-6.8, -27.3, 0), App.Vector(0, 0, 1), 2), False)
sketch9.addGeometry(Part.Circle(App.Vector(-6.8, -17.3, 0), App.Vector(0, 0, 1), 2), False)
sketch9.addConstraint(Sketcher.Constraint("Equal", 0, 1))
sketch9.addConstraint(Sketcher.Constraint("Equal", 1, 2))
sketch9.addConstraint(Sketcher.Constraint("Equal", 2, 3))
sketch9.addConstraint(Sketcher.Constraint("Equal", 3, 4))
sketch9.addConstraint(Sketcher.Constraint("Equal", 4, 5))
sketch9.addConstraint(Sketcher.Constraint("Equal", 5, 6))
sketch9.addConstraint(Sketcher.Constraint("Vertical", 0, 3, 1, 3))
sketch9.addConstraint(Sketcher.Constraint("Vertical", 1, 3, 2, 3))
sketch9.addConstraint(Sketcher.Constraint("Vertical", 2, 3, 3, 3))
sketch9.addConstraint(Sketcher.Constraint("Vertical", 3, 3, 4, 3))
sketch9.addConstraint(Sketcher.Constraint("Vertical", 4, 3, 5, 3))
sketch9.addConstraint(Sketcher.Constraint("Vertical", 5, 3, 6, 3))
sketch9.addConstraint(Sketcher.Constraint("Diameter", 0, 4.0))
sketch9.addConstraint(Sketcher.Constraint("DistanceY", 1, 3, 0, 3, 10.0))
sketch9.addConstraint(Sketcher.Constraint("DistanceY", 2, 3, 1, 3, 10.0))
sketch9.addConstraint(Sketcher.Constraint("DistanceY", 3, 3, 2, 3, 10.0))
sketch9.addConstraint(Sketcher.Constraint("DistanceY", 0, 3, 4, 3, 10.0))
sketch9.addConstraint(Sketcher.Constraint("DistanceY", 4, 3, 5, 3, 10.0))
sketch9.addConstraint(Sketcher.Constraint("DistanceY", 5, 3, 6, 3, 10.0))
sketch9.addConstraint(Sketcher.Constraint("DistanceX", 0, 3, -1, 1, 6.794417))
sketch9.addConstraint(Sketcher.Constraint("DistanceY", 0, 3, -1, 1, 47.307143))
pocket3 = body.newObject("PartDesign::Pocket", "Pocket002")
pocket3.Profile = sketch9
pocket3.Length = 5
pocket3.Reversed = True
doc.recompute()

fillet = body.newObject("PartDesign::Fillet", "Fillet")
fillet.Base = (pocket3, edges_at(pocket3, [
    (-14.794, 4, -84.807),
    (-14.794, 4, -9.807),
    (1.206, 4, -9.807),
    (1.206, 4, -84.807),
]))
fillet.Radius = 5

# Sketch on XZ plane
sketch10 = body.newObject("Sketcher::SketchObject", "Sketch009")
sketch10.AttachmentSupport = (doc.getObject("XZ_Plane"), [""])
sketch10.MapMode = "FlatFace"
sketch10.addGeometry(Part.Circle(App.Vector(20.2, -1.8, 0), App.Vector(0, 0, 1), 4), False)
sketch10.addGeometry(Part.Circle(App.Vector(-22.8, -1.8, 0), App.Vector(0, 0, 1), 4), False)
sketch10.addGeometry(Part.Circle(App.Vector(20.2, -92.8, 0), App.Vector(0, 0, 1), 4), False)
sketch10.addGeometry(Part.Circle(App.Vector(-22.8, -92.8, 0), App.Vector(0, 0, 1), 4), False)
sketch10.addConstraint(Sketcher.Constraint("Equal", 0, 1))
sketch10.addConstraint(Sketcher.Constraint("Equal", 1, 2))
sketch10.addConstraint(Sketcher.Constraint("Equal", 2, 3))
sketch10.addConstraint(Sketcher.Constraint("Horizontal", 0, 3, 1, 3))
sketch10.addConstraint(Sketcher.Constraint("Horizontal", 2, 3, 3, 3))
sketch10.addConstraint(Sketcher.Constraint("Vertical", 0, 3, 2, 3))
sketch10.addConstraint(Sketcher.Constraint("Vertical", 1, 3, 3, 3))
sketch10.addConstraint(Sketcher.Constraint("Diameter", 0, 8.0))
sketch10.addConstraint(Sketcher.Constraint("DistanceX", 1, 3, 0, 3, 43.0))
sketch10.addConstraint(Sketcher.Constraint("DistanceY", 2, 3, 0, 3, 91.0))
sketch10.addConstraint(Sketcher.Constraint("DistanceX", -1, 1, 0, 3, 20.205583))
sketch10.addConstraint(Sketcher.Constraint("DistanceY", 0, 3, -1, 1, 1.807143))
pocket4 = body.newObject("PartDesign::Pocket", "Pocket003")
pocket4.Profile = sketch10
pocket4.Length = 2

# Sketch on XZ plane
sketch11 = body.newObject("Sketcher::SketchObject", "Sketch010")
sketch11.AttachmentSupport = (doc.getObject("XZ_Plane"), [""])
sketch11.MapMode = "FlatFace"
sketch11.addGeometry(Part.Circle(App.Vector(-46.8, -1.8, 0), App.Vector(0, 0, 1), 4), False)
sketch11.addGeometry(Part.Circle(App.Vector(-46.8, -92.8, 0), App.Vector(0, 0, 1), 4), False)
sketch11.addConstraint(Sketcher.Constraint("Equal", 0, 1))
sketch11.addConstraint(Sketcher.Constraint("Vertical", 0, 3, 1, 3))
sketch11.addConstraint(Sketcher.Constraint("Diameter", 0, 8.0))
sketch11.addConstraint(Sketcher.Constraint("DistanceY", 1, 3, 0, 3, 91.0))
sketch11.addConstraint(Sketcher.Constraint("DistanceX", 0, 3, -1, 1, 46.794417))
sketch11.addConstraint(Sketcher.Constraint("DistanceY", 0, 3, -1, 1, 1.807143))
pocket5 = body.newObject("PartDesign::Pocket", "Pocket004")
pocket5.Profile = sketch11
pocket5.Length = 2

doc.recompute()
